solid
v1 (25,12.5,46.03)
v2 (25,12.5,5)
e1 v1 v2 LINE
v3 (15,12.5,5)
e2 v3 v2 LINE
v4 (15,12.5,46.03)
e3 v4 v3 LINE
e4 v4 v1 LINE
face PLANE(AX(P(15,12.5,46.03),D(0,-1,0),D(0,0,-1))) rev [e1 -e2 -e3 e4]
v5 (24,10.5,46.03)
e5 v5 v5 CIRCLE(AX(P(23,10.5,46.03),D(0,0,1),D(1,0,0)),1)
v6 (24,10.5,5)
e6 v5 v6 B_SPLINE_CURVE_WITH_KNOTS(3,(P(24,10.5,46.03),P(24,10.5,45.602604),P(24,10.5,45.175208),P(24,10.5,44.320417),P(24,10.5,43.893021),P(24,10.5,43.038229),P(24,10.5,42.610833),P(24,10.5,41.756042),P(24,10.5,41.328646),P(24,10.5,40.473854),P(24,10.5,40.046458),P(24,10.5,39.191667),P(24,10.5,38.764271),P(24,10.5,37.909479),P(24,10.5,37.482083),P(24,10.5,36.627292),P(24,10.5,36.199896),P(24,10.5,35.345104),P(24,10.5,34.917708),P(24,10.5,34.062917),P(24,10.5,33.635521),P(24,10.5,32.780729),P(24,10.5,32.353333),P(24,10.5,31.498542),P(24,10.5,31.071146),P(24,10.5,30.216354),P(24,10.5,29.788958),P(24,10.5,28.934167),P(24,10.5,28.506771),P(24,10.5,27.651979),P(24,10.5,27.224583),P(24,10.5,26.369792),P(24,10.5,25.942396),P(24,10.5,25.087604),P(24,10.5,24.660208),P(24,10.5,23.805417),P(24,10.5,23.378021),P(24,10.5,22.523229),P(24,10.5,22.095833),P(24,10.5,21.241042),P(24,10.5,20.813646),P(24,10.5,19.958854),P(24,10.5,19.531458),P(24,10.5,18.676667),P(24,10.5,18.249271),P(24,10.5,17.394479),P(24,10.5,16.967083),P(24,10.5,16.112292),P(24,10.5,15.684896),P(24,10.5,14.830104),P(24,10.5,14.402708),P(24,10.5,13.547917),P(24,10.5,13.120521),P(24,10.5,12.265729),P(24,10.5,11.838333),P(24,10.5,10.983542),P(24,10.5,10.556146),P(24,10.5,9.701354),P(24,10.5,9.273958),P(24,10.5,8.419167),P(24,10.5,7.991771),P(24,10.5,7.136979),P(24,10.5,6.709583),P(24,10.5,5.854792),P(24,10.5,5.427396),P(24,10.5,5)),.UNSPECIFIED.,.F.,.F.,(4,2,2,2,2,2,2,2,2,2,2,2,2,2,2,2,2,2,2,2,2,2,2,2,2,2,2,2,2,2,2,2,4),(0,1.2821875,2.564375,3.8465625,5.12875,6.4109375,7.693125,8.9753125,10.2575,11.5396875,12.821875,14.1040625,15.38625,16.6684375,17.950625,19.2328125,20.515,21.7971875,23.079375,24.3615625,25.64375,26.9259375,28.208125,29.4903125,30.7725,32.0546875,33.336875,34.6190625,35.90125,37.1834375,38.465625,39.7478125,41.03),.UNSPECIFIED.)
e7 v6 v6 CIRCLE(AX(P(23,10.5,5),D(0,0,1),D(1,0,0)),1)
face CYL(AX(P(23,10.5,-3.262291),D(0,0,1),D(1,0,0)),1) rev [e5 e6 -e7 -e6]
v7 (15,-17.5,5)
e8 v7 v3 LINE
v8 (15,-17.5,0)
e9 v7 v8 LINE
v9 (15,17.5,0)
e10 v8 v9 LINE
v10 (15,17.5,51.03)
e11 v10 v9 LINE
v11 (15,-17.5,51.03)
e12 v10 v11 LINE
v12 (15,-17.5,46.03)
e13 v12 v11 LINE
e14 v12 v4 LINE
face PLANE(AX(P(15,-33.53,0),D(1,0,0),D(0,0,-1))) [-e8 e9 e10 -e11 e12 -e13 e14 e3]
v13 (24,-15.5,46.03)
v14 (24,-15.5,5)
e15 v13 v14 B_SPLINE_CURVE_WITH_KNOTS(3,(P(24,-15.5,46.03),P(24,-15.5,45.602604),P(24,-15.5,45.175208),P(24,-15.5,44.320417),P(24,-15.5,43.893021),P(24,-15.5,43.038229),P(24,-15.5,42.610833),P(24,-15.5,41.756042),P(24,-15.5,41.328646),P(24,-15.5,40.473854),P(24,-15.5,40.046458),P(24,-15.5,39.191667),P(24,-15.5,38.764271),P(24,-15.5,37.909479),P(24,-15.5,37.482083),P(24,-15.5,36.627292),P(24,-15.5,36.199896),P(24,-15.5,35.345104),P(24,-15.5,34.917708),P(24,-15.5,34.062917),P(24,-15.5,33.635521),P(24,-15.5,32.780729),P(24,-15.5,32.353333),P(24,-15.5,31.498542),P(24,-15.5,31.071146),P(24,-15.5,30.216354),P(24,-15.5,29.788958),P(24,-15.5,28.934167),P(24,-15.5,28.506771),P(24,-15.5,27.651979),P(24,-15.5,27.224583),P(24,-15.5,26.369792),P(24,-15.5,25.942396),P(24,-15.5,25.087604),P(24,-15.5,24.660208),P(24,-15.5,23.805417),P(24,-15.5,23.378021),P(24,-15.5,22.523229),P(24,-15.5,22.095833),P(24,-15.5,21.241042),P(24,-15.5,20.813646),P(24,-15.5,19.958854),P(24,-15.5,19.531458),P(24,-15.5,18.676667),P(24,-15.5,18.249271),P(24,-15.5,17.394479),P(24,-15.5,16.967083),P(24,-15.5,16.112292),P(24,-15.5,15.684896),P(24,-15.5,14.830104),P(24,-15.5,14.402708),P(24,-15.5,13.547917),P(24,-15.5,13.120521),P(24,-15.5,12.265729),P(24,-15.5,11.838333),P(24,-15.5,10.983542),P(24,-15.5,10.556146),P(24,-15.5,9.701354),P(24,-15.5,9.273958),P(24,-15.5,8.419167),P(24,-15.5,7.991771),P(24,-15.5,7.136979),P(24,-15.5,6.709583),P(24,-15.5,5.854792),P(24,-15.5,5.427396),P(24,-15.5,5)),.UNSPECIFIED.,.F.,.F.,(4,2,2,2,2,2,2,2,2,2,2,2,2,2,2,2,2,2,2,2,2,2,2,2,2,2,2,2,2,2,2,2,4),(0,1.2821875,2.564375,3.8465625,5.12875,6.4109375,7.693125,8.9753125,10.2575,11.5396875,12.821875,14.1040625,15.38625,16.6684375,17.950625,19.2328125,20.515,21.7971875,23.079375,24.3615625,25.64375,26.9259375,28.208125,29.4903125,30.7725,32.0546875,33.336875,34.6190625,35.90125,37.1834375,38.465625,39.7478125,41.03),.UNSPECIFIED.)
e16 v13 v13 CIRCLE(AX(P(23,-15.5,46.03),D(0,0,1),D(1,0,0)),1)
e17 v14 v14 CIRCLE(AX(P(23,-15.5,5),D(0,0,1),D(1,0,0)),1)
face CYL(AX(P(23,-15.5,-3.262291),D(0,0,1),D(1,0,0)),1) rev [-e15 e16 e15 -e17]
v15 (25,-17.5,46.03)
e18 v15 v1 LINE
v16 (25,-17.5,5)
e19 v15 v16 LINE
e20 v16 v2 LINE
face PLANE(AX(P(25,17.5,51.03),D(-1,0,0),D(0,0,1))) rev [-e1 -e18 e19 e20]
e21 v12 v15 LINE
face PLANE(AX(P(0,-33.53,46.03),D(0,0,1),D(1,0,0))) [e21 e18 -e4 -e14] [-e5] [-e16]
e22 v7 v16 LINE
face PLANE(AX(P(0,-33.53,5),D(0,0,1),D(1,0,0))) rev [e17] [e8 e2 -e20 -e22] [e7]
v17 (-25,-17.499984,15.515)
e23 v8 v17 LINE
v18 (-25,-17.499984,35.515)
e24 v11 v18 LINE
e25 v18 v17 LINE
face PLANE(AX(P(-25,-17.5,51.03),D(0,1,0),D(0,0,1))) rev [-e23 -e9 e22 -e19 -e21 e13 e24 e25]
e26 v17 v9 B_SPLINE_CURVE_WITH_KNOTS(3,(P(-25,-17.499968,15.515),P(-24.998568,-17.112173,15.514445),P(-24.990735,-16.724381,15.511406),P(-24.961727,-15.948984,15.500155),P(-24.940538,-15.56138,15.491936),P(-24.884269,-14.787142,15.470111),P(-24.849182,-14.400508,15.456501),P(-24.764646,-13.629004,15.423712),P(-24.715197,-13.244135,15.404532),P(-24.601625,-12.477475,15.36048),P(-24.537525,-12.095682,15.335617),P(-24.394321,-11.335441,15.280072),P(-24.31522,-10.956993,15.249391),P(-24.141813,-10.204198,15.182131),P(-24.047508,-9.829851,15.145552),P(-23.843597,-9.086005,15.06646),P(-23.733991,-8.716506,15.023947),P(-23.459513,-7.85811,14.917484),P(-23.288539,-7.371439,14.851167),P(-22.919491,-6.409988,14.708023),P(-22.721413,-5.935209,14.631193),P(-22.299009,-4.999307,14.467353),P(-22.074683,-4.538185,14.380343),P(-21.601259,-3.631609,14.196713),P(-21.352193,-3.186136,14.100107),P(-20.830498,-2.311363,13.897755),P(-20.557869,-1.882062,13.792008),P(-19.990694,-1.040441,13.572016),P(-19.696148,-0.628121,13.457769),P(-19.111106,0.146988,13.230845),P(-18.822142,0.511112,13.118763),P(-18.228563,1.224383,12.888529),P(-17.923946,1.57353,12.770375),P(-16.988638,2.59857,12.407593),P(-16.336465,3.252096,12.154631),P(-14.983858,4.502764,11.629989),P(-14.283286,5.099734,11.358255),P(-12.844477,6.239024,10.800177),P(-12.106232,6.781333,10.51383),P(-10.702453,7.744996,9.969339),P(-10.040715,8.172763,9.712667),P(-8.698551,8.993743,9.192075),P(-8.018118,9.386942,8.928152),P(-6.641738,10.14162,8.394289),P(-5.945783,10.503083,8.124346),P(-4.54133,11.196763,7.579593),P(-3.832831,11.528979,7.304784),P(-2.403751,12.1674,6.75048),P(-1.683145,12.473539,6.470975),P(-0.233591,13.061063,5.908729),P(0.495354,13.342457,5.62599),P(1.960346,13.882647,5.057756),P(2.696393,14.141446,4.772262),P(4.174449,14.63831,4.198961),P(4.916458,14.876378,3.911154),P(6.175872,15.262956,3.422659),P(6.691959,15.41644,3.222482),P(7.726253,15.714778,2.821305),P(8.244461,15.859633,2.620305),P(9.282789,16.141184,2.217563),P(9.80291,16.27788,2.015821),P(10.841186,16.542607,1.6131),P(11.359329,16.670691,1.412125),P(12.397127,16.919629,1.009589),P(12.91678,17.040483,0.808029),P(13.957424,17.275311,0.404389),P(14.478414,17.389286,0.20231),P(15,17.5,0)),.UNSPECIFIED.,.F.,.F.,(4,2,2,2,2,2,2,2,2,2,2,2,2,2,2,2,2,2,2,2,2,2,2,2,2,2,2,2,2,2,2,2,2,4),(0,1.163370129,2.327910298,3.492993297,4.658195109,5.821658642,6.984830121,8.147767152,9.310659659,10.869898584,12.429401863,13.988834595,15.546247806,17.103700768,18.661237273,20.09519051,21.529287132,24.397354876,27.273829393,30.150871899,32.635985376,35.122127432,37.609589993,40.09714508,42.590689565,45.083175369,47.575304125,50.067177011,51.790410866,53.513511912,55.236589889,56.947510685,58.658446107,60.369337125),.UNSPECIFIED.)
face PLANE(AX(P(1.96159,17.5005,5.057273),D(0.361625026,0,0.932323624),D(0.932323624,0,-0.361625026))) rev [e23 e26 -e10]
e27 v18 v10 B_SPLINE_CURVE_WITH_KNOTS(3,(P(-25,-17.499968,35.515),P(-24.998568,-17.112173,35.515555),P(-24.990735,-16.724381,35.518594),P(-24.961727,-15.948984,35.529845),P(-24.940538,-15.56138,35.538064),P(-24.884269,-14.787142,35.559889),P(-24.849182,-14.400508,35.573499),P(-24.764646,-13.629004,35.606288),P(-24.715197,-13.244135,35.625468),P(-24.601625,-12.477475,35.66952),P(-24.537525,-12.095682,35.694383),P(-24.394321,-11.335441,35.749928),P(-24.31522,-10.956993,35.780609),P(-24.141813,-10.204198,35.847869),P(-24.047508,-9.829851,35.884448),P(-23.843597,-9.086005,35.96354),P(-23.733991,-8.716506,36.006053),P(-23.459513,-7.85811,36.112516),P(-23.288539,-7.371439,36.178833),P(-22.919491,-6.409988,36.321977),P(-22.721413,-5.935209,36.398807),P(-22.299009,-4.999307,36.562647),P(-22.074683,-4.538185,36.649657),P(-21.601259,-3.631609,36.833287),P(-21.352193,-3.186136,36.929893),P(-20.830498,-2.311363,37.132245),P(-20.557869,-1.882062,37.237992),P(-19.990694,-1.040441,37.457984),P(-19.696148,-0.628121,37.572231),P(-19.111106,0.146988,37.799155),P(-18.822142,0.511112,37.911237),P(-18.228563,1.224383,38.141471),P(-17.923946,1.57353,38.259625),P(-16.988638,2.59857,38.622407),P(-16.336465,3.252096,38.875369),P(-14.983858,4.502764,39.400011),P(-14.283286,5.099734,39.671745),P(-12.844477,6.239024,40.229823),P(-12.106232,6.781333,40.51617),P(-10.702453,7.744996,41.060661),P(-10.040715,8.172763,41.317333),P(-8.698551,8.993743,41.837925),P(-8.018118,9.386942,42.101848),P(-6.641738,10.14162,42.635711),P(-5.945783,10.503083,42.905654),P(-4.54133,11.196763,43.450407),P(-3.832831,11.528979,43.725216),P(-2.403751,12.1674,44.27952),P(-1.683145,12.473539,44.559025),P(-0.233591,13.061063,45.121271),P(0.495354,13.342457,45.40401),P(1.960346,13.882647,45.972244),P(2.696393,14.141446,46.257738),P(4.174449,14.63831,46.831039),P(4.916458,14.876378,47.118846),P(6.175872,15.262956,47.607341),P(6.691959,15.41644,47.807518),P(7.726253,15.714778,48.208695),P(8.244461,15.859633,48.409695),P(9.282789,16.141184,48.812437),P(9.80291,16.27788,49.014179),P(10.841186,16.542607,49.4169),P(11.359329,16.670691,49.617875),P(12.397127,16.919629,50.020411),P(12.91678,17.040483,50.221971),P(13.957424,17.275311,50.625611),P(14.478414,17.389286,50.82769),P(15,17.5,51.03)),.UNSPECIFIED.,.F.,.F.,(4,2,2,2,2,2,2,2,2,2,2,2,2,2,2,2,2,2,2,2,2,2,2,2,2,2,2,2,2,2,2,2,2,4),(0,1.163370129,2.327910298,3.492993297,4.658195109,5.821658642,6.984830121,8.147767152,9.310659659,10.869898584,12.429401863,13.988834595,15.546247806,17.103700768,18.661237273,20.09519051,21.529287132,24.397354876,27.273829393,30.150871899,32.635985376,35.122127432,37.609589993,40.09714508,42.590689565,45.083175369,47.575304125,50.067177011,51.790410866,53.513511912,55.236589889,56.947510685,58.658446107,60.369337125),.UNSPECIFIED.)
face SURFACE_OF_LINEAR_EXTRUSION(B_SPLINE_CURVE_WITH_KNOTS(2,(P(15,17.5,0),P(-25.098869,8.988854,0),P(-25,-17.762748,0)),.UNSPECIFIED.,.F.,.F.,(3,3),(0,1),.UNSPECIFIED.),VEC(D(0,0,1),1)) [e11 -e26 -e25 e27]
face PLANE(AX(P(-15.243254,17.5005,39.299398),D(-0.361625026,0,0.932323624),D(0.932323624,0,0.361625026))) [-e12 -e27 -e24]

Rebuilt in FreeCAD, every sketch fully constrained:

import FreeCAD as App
import Part
import Sketcher

doc = App.newDocument("Part")
body = doc.addObject("PartDesign::Body", "Body")

# Sketch on XY plane
sketch1 = body.newObject("Sketcher::SketchObject", "Sketch")
sketch1.AttachmentSupport = (doc.getObject("XY_Plane"), [""])
sketch1.MapMode = "FlatFace"
sketch1.addGeometry([
    Part.LineSegment(App.Vector(-25, 18, 0), App.Vector(-25, -18, 0)),
    Part.LineSegment(App.Vector(-25, -18, 0), App.Vector(25, -18, 0)),
    Part.LineSegment(App.Vector(25, -18, 0), App.Vector(25, 18, 0)),
    Part.LineSegment(App.Vector(25, 18, 0), App.Vector(-25, 18, 0)),
], False)
sketch1.addConstraint([
    Sketcher.Constraint("Coincident", 0, 2, 1, 1),
    Sketcher.Constraint("Coincident", 1, 2, 2, 1),
    Sketcher.Constraint("Coincident", 2, 2, 3, 1),
    Sketcher.Constraint("Coincident", 3, 2, 0, 1),
    Sketcher.Constraint("Vertical", 0),
    Sketcher.Constraint("Horizontal", 1),
    Sketcher.Constraint("Vertical", 2),
    Sketcher.Constraint("Horizontal", 3),
    Sketcher.Constraint("Symmetric", 0, 2, 2, 2, -1, 1),
    Sketcher.Constraint("DistanceX", 1, 1, 1, 2, 50.0),
    Sketcher.Constraint("DistanceY", 0, 2, 0, 1, 35.0),
])
pad1 = body.newObject("PartDesign::Pad", "Pad")
pad1.Profile = sketch1
pad1.Length = 51.03

# Sketch on XZ plane
sketch2 = body.newObject("Sketcher::SketchObject", "Sketch001")
sketch2.AttachmentSupport = (doc.getObject("XZ_Plane"), [""])
sketch2.MapMode = "FlatFace"
sketch2.AttachmentOffset = App.Placement(App.Vector(0, 0, -17.5), App.Rotation())
sketch2.addGeometry([
    Part.LineSegment(App.Vector(15, 0, 0), App.Vector(15, 5, 0)),  # 0
    Part.LineSegment(App.Vector(15, 5, 0), App.Vector(25, 5, 0)),  # 1
    Part.LineSegment(App.Vector(25, 5, 0), App.Vector(25, 0, 0)),  # 2
    Part.LineSegment(App.Vector(25, 0, 0), App.Vector(15, 0, 0)),  # 3
    Part.LineSegment(App.Vector(15, 46, 0), App.Vector(15, 51, 0)),  # 4
    Part.LineSegment(App.Vector(15, 51, 0), App.Vector(25, 51, 0)),  # 5
    Part.LineSegment(App.Vector(25, 51, 0), App.Vector(25, 46, 0)),  # 6
    Part.LineSegment(App.Vector(25, 46, 0), App.Vector(15, 46, 0)),  # 7
], False)
sketch2.addConstraint([
    Sketcher.Constraint("Coincident", 0, 2, 1, 1),
    Sketcher.Constraint("Coincident", 1, 2, 2, 1),
    Sketcher.Constraint("Coincident", 2, 2, 3, 1),
    Sketcher.Constraint("Coincident", 3, 2, 0, 1),
    Sketcher.Constraint("Coincident", 4, 2, 5, 1),
    Sketcher.Constraint("Coincident", 5, 2, 6, 1),
    Sketcher.Constraint("Coincident", 6, 2, 7, 1),
    Sketcher.Constraint("Coincident", 7, 2, 4, 1),
    Sketcher.Constraint("Vertical", 0),
    Sketcher.Constraint("Horizontal", 1),
    Sketcher.Constraint("Vertical", 2),
    Sketcher.Constraint("Horizontal", 3),
    Sketcher.Constraint("Vertical", 4),
    Sketcher.Constraint("Horizontal", 5),
    Sketcher.Constraint("Vertical", 6),
    Sketcher.Constraint("Horizontal", 7),
    Sketcher.Constraint("PointOnObject", 2, 2, -1),
    Sketcher.Constraint("Vertical", 3, 2, 4, 2),
    Sketcher.Constraint("Vertical", 2, 2, 5, 2),
    Sketcher.Constraint("Equal", 2, 4),
    Sketcher.Constraint("DistanceX", 1, 1, 1, 2, 10.0),
    Sketcher.Constraint("DistanceY", 0, 1, 0, 2, 5.0),
    Sketcher.Constraint("DistanceX", -1, 1, 0, 2, 15.0),
    Sketcher.Constraint("DistanceY", -1, 1, 4, 2, 51.03),
])
pocket1 = body.newObject("PartDesign::Pocket", "Pocket")
pocket1.Profile = sketch2
pocket1.Length = 51.03
pocket1.Reversed = True

# Sketch on XY plane
sketch3 = body.newObject("Sketcher::SketchObject", "Sketch002")
sketch3.AttachmentSupport = (doc.getObject("XY_Plane"), [""])
sketch3.MapMode = "FlatFace"
sketch3.AttachmentOffset = App.Placement(App.Vector(0, 0, 51.03), App.Rotation())
sketch3.addGeometry([
    Part.BSplineCurve([App.Vector(15, 17.5, 0), App.Vector(-24.901617, 9.030722, 0), App.Vector(-25, -17.5, 0)], [3, 3], [0, 0.995080861], False, 2, [1, 1, 1], False),
    Part.LineSegment(App.Vector(15, 17.5, 0), App.Vector(-25, 17.5, 0)),
    Part.LineSegment(App.Vector(-25, 17.5, 0), App.Vector(-25, -17.5, 0)),
], False)
sketch3.addConstraint([
    Sketcher.Constraint("Block", 0),
    Sketcher.Constraint("Coincident", 0, 1, 1, 1),
    Sketcher.Constraint("Coincident", 1, 2, 2, 1),
    Sketcher.Constraint("Coincident", 2, 2, 0, 2),
    Sketcher.Constraint("Horizontal", 1),
    Sketcher.Constraint("Vertical", 2),
])
pocket2 = body.newObject("PartDesign::Pocket", "Pocket001")
pocket2.Profile = sketch3
pocket2.Type = "ThroughAll"

# Sketch on XZ plane
sketch4 = body.newObject("Sketcher::SketchObject", "Sketch003")
sketch4.AttachmentSupport = (doc.getObject("XZ_Plane"), [""])
sketch4.MapMode = "FlatFace"
sketch4.AttachmentOffset = App.Placement(App.Vector(0, 0, 17.5), App.Rotation())
sketch4.addGeometry([
    Part.LineSegment(App.Vector(-25, 36, 0), App.Vector(15, 51, 0)),  # 0
    Part.LineSegment(App.Vector(15, 51, 0), App.Vector(-25, 51, 0)),  # 1
    Part.LineSegment(App.Vector(-25, 51, 0), App.Vector(-25, 36, 0)),  # 2
    Part.LineSegment(App.Vector(-25, 0, 0), App.Vector(15, 0, 0)),  # 3
    Part.LineSegment(App.Vector(15, 0, 0), App.Vector(-25, 16, 0)),  # 4
    Part.LineSegment(App.Vector(-25, 16, 0), App.Vector(-25, 0, 0)),  # 5
], False)
sketch4.addConstraint([
    Sketcher.Constraint("Coincident", 0, 2, 1, 1),
    Sketcher.Constraint("Coincident", 1, 2, 2, 1),
    Sketcher.Constraint("Coincident", 2, 2, 0, 1),
    Sketcher.Constraint("Coincident", 3, 2, 4, 1),
    Sketcher.Constraint("Coincident", 4, 2, 5, 1),
    Sketcher.Constraint("Coincident", 5, 2, 3, 1),
    Sketcher.Constraint("Horizontal", 1),
    Sketcher.Constraint("Vertical", 2),
    Sketcher.Constraint("Horizontal", 3),
    Sketcher.Constraint("Vertical", 5),
    Sketcher.Constraint("PointOnObject", 3, 2, -1),
    Sketcher.Constraint("Vertical", 0, 2, 3, 2),
    Sketcher.Constraint("Vertical", 2, 2, 4, 2),
    Sketcher.Constraint("Equal", 2, 5),
    Sketcher.Constraint("DistanceX", 1, 2, 1, 1, 40.0),
    Sketcher.Constraint("DistanceX", -1, 1, 0, 2, 15.0),
    Sketcher.Constraint("DistanceY", 4, 2, 2, 2, 20.0),
    Sketcher.Constraint("DistanceY", 2, 2, 2, 1, 15.515),
])
pocket3 = body.newObject("PartDesign::Pocket", "Pocket002")
pocket3.Profile = sketch4
pocket3.Type = "ThroughAll"

# Sketch on YZ plane
sketch5 = body.newObject("Sketcher::SketchObject", "Sketch004")
sketch5.AttachmentSupport = (doc.getObject("YZ_Plane"), [""])
sketch5.MapMode = "FlatFace"
sketch5.AttachmentOffset = App.Placement(App.Vector(0, 0, 25), App.Rotation())
sketch5.addGeometry([
    Part.LineSegment(App.Vector(18, 46, 0), App.Vector(12, 46, 0)),
    Part.LineSegment(App.Vector(12, 46, 0), App.Vector(12, 5, 0)),
    Part.LineSegment(App.Vector(12, 5, 0), App.Vector(18, 5, 0)),
    Part.LineSegment(App.Vector(18, 5, 0), App.Vector(18, 46, 0)),
], False)
sketch5.addConstraint([
    Sketcher.Constraint("Coincident", 0, 2, 1, 1),
    Sketcher.Constraint("Coincident", 1, 2, 2, 1),
    Sketcher.Constraint("Coincident", 2, 2, 3, 1),
    Sketcher.Constraint("Coincident", 3, 2, 0, 1),
    Sketcher.Constraint("Horizontal", 0),
    Sketcher.Constraint("Vertical", 1),
    Sketcher.Constraint("Horizontal", 2),
    Sketcher.Constraint("Vertical", 3),
    Sketcher.Constraint("DistanceX", 0, 2, 0, 1, 5.0),
    Sketcher.Constraint("DistanceY", -1, 1, 1, 2, 5.0),
    Sketcher.Constraint("DistanceY", 1, 2, 1, 1, 41.03),
    Sketcher.Constraint("DistanceX", -1, 1, 0, 2, 12.5),
])
pocket4 = body.newObject("PartDesign::Pocket", "Pocket003")
pocket4.Profile = sketch5
pocket4.Length = 10

# Sketch on XY plane
sketch6 = body.newObject("Sketcher::SketchObject", "Sketch005")
sketch6.AttachmentSupport = (doc.getObject("XY_Plane"), [""])
sketch6.MapMode = "FlatFace"
sketch6.AttachmentOffset = App.Placement(App.Vector(0, 0, 46.03), App.Rotation())
sketch6.addGeometry([
    Part.Circle(App.Vector(23, 10.5, 0), App.Vector(0, 0, 1), 1),
    Part.Circle(App.Vector(23, -15.5, 0), App.Vector(0, 0, 1), 1),
], False)
sketch6.addConstraint([
    Sketcher.Constraint("Equal", 0, 1),
    Sketcher.Constraint("Vertical", 0, 3, 1, 3),
    Sketcher.Constraint("Diameter", 0, 2.0),
    Sketcher.Constraint("DistanceX", -1, 1, 0, 3, 23.0),
    Sketcher.Constraint("DistanceY", 1, 3, 0, 3, 26.0),
    Sketcher.Constraint("DistanceY", -1, 1, 0, 3, 10.5),
])
pocket5 = body.newObject("PartDesign::Pocket", "Pocket004")
pocket5.Profile = sketch6
pocket5.Type = "ThroughAll"

doc.recompute()
